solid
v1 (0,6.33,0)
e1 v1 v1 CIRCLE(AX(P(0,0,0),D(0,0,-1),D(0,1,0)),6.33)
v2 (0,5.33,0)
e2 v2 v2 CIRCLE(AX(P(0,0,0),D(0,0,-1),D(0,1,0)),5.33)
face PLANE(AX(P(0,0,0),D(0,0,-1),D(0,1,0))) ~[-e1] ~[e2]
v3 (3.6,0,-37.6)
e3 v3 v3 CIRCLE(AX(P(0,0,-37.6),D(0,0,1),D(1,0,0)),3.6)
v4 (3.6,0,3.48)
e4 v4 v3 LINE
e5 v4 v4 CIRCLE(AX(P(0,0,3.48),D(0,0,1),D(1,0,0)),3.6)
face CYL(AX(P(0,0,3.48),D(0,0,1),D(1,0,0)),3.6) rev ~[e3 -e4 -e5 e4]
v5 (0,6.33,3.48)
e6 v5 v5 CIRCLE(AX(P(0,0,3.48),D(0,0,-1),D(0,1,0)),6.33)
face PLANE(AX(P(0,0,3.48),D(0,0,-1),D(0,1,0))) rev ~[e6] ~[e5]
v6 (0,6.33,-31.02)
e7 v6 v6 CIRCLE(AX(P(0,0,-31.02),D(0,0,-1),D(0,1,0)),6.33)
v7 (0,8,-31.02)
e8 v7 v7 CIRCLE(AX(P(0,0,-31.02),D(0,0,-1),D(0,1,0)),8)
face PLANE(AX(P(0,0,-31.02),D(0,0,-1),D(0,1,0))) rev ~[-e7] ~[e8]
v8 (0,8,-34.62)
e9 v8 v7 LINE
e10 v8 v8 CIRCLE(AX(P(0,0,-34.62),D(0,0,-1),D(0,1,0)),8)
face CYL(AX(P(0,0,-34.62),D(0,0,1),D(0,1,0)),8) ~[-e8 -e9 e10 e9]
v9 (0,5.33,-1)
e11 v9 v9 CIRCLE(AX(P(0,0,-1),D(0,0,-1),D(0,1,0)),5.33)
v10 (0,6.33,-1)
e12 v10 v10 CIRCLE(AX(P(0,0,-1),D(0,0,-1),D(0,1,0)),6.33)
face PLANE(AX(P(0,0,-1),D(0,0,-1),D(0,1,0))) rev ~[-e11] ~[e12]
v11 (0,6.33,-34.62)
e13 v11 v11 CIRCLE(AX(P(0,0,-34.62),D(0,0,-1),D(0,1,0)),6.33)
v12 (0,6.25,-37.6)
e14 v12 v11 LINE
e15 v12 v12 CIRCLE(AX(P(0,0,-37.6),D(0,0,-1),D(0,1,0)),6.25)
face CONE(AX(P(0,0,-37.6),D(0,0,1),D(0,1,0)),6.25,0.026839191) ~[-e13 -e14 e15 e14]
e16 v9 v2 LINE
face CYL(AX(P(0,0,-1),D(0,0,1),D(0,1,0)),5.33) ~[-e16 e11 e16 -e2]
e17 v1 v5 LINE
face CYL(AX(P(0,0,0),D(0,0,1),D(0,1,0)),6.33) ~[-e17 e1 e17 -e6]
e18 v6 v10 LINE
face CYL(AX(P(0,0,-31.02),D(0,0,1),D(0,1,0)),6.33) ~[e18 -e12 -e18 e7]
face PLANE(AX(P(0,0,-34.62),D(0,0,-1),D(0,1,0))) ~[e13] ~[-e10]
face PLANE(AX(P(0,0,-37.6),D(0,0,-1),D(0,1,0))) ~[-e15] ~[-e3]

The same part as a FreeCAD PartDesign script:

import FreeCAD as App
import Part
import Sketcher
from FreeCAD import Vector

doc = App.newDocument("Part")
params = doc.addObject("Spreadsheet::Sheet", "Params")
for row, (alias, value) in enumerate([
    ("sketch1_width", "1 mm"),
    ("sketch1_height", "3.6 mm"),
    ("sketch1_width2", "6.33 mm"),
    ("sketch1_width3", "6.25 mm"),
    ("sketch1_height2", "41.08 mm"),
    ("revolution_angle", "360 deg"),
    ("sketch2_diameter", "7.2 mm"),
], start=1):
    params.set(f"A{row}", alias)
    params.set(f"B{row}", "=" + value)
    params.setAlias(f"B{row}", alias)

body = doc.addObject("PartDesign::Body", "Body")

# Sketch on YZ plane
sketch1 = body.newObject("Sketcher::SketchObject", "Sketch")
sketch1.AttachmentSupport = (doc.getObject("YZ_Plane"), [""])
sketch1.MapMode = "FlatFace"
sketch1.addGeometry(Part.LineSegment(Vector(6.3, 3.5, 0), Vector(0, 3.5, 0)), False)
sketch1.addGeometry(Part.LineSegment(Vector(0, 3.5, 0), Vector(0, -37.6, 0)), False)
sketch1.addGeometry(Part.LineSegment(Vector(0, -37.6, 0), Vector(6.2, -37.6, 0)), False)
sketch1.addGeometry(Part.LineSegment(Vector(6.2, -37.6, 0), Vector(6.3, -34.6, 0)), False)
sketch1.addGeometry(Part.LineSegment(Vector(6.3, -34.6, 0), Vector(8, -34.6, 0)), False)
sketch1.addGeometry(Part.LineSegment(Vector(8, -34.6, 0), Vector(8, -31, 0)), False)
sketch1.addGeometry(Part.LineSegment(Vector(8, -31, 0), Vector(6.3, -31, 0)), False)
sketch1.addGeometry(Part.LineSegment(Vector(6.3, -31, 0), Vector(6.3, -1, 0)), False)
sketch1.addGeometry(Part.LineSegment(Vector(6.3, -1, 0), Vector(5.3, -1, 0)), False)
sketch1.addGeometry(Part.LineSegment(Vector(5.3, -1, 0), Vector(5.3, 0, 0)), False)
sketch1.addGeometry(Part.LineSegment(Vector(5.3, 0, 0), Vector(6.3, 0, 0)), False)
sketch1.addGeometry(Part.LineSegment(Vector(6.3, 0, 0), Vector(6.3, 3.5, 0)), False)
sketch1.addConstraint(Sketcher.Constraint("Coincident", 0, 2, 1, 1))
sketch1.addConstraint(Sketcher.Constraint("Coincident", 1, 2, 2, 1))
sketch1.addConstraint(Sketcher.Constraint("Coincident", 2, 2, 3, 1))
sketch1.addConstraint(Sketcher.Constraint("Coincident", 3, 2, 4, 1))
sketch1.addConstraint(Sketcher.Constraint("Coincident", 4, 2, 5, 1))
sketch1.addConstraint(Sketcher.Constraint("Coincident", 5, 2, 6, 1))
sketch1.addConstraint(Sketcher.Constraint("Coincident", 6, 2, 7, 1))
sketch1.addConstraint(Sketcher.Constraint("Coincident", 7, 2, 8, 1))
sketch1.addConstraint(Sketcher.Constraint("Coincident", 8, 2, 9, 1))
sketch1.addConstraint(Sketcher.Constraint("Coincident", 9, 2, 10, 1))
sketch1.addConstraint(Sketcher.Constraint("Coincident", 10, 2, 11, 1))
sketch1.addConstraint(Sketcher.Constraint("Coincident", 11, 2, 0, 1))
sketch1.addConstraint(Sketcher.Constraint("Horizontal", 0))
sketch1.addConstraint(Sketcher.Constraint("Vertical", 1))
sketch1.addConstraint(Sketcher.Constraint("Horizontal", 2))
sketch1.addConstraint(Sketcher.Constraint("Horizontal", 4))
sketch1.addConstraint(Sketcher.Constraint("Vertical", 5))
sketch1.addConstraint(Sketcher.Constraint("Horizontal", 6))
sketch1.addConstraint(Sketcher.Constraint("Vertical", 7))
sketch1.addConstraint(Sketcher.Constraint("Horizontal", 8))
sketch1.addConstraint(Sketcher.Constraint("Vertical", 9))
sketch1.addConstraint(Sketcher.Constraint("Horizontal", 10))
sketch1.addConstraint(Sketcher.Constraint("Vertical", 11))
sketch1.addConstraint(Sketcher.Constraint("PointOnObject", 0, 2, -2))
sketch1.addConstraint(Sketcher.Constraint("PointOnObject", 9, 2, -1))
sketch1.addConstraint(Sketcher.Constraint("Vertical", 3, 2, 6, 2))
sketch1.addConstraint(Sketcher.Constraint("Vertical", 7, 2, 10, 2))
sketch1.addConstraint(Sketcher.Constraint("Equal", 10, 9))
sketch1.addConstraint(Sketcher.Constraint("DistanceX", 8, 2, 8, 1, 1.0))
sketch1.addConstraint(Sketcher.Constraint("DistanceY", 5, 1, 5, 2, 3.6))
sketch1.addConstraint(Sketcher.Constraint("DistanceX", -1, 1, 4, 2, 8.0))
sketch1.addConstraint(Sketcher.Constraint("DistanceX", 0, 2, 0, 1, 6.33))
sketch1.addConstraint(Sketcher.Constraint("DistanceX", 2, 1, 2, 2, 6.25))
sketch1.addConstraint(Sketcher.Constraint("DistanceY", 1, 2, 1, 1, 41.08))
sketch1.addConstraint(Sketcher.Constraint("DistanceY", 7, 1, 7, 2, 30.02))
sketch1.addConstraint(Sketcher.Constraint("DistanceY", 11, 1, 11, 2, 3.48))
sketch1.setExpression("Constraints[28]", "Params.sketch1_width")
sketch1.setExpression("Constraints[29]", "Params.sketch1_height")
sketch1.setExpression("Constraints[31]", "Params.sketch1_width2")
sketch1.setExpression("Constraints[32]", "Params.sketch1_width3")
sketch1.setExpression("Constraints[33]", "Params.sketch1_height2")
revolution = body.newObject("PartDesign::Revolution", "Revolution")
revolution.Profile = sketch1
revolution.ReferenceAxis = (sketch1, ["V_Axis"])
revolution.setExpression("Angle", "Params.revolution_angle")

# Sketch on XY plane
sketch2 = body.newObject("Sketcher::SketchObject", "Sketch001")
sketch2.AttachmentSupport = (doc.getObject("XY_Plane"), [""])
sketch2.MapMode = "FlatFace"
sketch2.AttachmentOffset = App.Placement(Vector(0, 0, 3.48), App.Rotation())
sketch2.addGeometry(Part.Circle(Vector(0, 0, 0), Vector(0, 0, 1), 3.6), False)
sketch2.addConstraint(Sketcher.Constraint("Coincident", 0, 3, -1, 1))
sketch2.addConstraint(Sketcher.Constraint("Diameter", 0, 7.2))
sketch2.setExpression("Constraints[1]", "Params.sketch2_diameter")
pocket1 = body.newObject("PartDesign::Pocket", "Pocket")
pocket1.Profile = sketch2
pocket1.Type = "ThroughAll"

doc.recompute()
